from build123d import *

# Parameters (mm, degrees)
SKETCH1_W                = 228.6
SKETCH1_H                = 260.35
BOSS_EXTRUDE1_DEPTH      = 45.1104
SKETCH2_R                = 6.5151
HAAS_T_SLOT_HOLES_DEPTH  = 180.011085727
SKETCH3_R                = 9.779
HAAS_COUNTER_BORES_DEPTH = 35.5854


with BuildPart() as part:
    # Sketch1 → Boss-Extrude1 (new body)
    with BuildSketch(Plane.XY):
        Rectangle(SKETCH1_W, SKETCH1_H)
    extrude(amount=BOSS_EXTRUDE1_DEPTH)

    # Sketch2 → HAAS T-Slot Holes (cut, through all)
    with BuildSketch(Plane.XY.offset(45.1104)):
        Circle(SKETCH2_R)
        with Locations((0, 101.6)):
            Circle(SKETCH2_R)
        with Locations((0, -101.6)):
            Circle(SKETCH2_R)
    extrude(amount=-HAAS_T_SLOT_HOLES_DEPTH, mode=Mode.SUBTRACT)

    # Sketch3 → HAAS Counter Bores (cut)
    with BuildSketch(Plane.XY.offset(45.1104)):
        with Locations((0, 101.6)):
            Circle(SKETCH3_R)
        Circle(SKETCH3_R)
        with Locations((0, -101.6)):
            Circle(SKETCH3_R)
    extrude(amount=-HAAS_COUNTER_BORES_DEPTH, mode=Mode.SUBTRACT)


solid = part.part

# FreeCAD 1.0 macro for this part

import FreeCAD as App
import Part
import Sketcher
Q = App.Units.Quantity

doc = App.newDocument("Part")
body = doc.addObject("PartDesign::Body", "Body")

sketch1 = body.newObject("Sketcher::SketchObject", "Sketch")
sketch1.AttachmentSupport = (doc.getObject("XY_Plane"), [""])
sketch1.MapMode = "FlatFace"
sketch1.addGeometry([
    Part.LineSegment(App.Vector(-114, 130, 0), App.Vector(-114, -130, 0)),
    Part.LineSegment(App.Vector(-114, -130, 0), App.Vector(114, -130, 0)),
    Part.LineSegment(App.Vector(114, -130, 0), App.Vector(114, 130, 0)),
    Part.LineSegment(App.Vector(114, 130, 0), App.Vector(-114, 130, 0)),
], False)
sketch1.addConstraint([
    Sketcher.Constraint("Coincident", 0, 2, 1, 1),
    Sketcher.Constraint("Coincident", 1, 2, 2, 1),
    Sketcher.Constraint("Coincident", 2, 2, 3, 1),
    Sketcher.Constraint("Coincident", 3, 2, 0, 1),
    Sketcher.Constraint("Vertical", 0),
    Sketcher.Constraint("Horizontal", 1),
    Sketcher.Constraint("Vertical", 2),
    Sketcher.Constraint("Horizontal", 3),
    Sketcher.Constraint("Symmetric", 0, 2, 2, 2, -1, 1),
    Sketcher.Constraint("DistanceX", 1, 1, 1, 2, Q("9 in")),
    Sketcher.Constraint("DistanceY", 0, 2, 0, 1, Q("10.25 in")),
])
pad1 = body.newObject("PartDesign::Pad", "Pad")
pad1.Profile = sketch1
pad1.Length = Q("1.776 in")

sketch2 = body.newObject("Sketcher::SketchObject", "Sketch001")
sketch2.AttachmentSupport = (doc.getObject("XY_Plane"), [""])
sketch2.MapMode = "FlatFace"
sketch2.AttachmentOffset = App.Placement(App.Vector(0, 0, 1.776 * 25.4), App.Rotation())
sketch2.addGeometry([
    Part.Circle(App.Vector(0, 0, 0), App.Vector(0, 0, 1), 7),
    Part.Circle(App.Vector(0, 102, 0), App.Vector(0, 0, 1), 7),
    Part.Circle(App.Vector(0, -102, 0), App.Vector(0, 0, 1), 7),
], False)
sketch2.addConstraint([
    Sketcher.Constraint("Coincident", 0, 3, -1, 1),
    Sketcher.Constraint("Equal", 0, 1),
    Sketcher.Constraint("Equal", 1, 2),
    Sketcher.Constraint("Symmetric", 1, 3, 2, 3, -1, 1),
    Sketcher.Constraint("PointOnObject", 1, 3, -2),
    Sketcher.Constraint("Diameter", 0, Q("0.513 in")),
    Sketcher.Constraint("DistanceY", -1, 1, 1, 3, Q("4 in")),
])
pocket1 = body.newObject("PartDesign::Pocket", "Pocket")
pocket1.Profile = sketch2
pocket1.Type = "ThroughAll"

sketch3 = body.newObject("Sketcher::SketchObject", "Sketch002")
sketch3.AttachmentSupport = (doc.getObject("XY_Plane"), [""])
sketch3.MapMode = "FlatFace"
sketch3.AttachmentOffset = App.Placement(App.Vector(0, 0, 1.776 * 25.4), App.Rotation())
sketch3.addGeometry([
    Part.Circle(App.Vector(0, 102, 0), App.Vector(0, 0, 1), 10),
    Part.Circle(App.Vector(0, 0, 0), App.Vector(0, 0, 1), 10),
    Part.Circle(App.Vector(0, -102, 0), App.Vector(0, 0, 1), 10),
], False)
sketch3.addConstraint([
    Sketcher.Constraint("Coincident", 1, 3, -1, 1),
    Sketcher.Constraint("Equal", 0, 1),
    Sketcher.Constraint("Equal", 1, 2),
    Sketcher.Constraint("Symmetric", 0, 3, 2, 3, -1, 1),
    Sketcher.Constraint("PointOnObject", 0, 3, -2),
    Sketcher.Constraint("Diameter", 0, Q("0.77 in")),
    Sketcher.Constraint("DistanceY", -1, 1, 0, 3, Q("4 in")),
])
pocket2 = body.newObject("PartDesign::Pocket", "Pocket001")
pocket2.Profile = sketch3
pocket2.Length = Q("1.401 in")

doc.recompute()
